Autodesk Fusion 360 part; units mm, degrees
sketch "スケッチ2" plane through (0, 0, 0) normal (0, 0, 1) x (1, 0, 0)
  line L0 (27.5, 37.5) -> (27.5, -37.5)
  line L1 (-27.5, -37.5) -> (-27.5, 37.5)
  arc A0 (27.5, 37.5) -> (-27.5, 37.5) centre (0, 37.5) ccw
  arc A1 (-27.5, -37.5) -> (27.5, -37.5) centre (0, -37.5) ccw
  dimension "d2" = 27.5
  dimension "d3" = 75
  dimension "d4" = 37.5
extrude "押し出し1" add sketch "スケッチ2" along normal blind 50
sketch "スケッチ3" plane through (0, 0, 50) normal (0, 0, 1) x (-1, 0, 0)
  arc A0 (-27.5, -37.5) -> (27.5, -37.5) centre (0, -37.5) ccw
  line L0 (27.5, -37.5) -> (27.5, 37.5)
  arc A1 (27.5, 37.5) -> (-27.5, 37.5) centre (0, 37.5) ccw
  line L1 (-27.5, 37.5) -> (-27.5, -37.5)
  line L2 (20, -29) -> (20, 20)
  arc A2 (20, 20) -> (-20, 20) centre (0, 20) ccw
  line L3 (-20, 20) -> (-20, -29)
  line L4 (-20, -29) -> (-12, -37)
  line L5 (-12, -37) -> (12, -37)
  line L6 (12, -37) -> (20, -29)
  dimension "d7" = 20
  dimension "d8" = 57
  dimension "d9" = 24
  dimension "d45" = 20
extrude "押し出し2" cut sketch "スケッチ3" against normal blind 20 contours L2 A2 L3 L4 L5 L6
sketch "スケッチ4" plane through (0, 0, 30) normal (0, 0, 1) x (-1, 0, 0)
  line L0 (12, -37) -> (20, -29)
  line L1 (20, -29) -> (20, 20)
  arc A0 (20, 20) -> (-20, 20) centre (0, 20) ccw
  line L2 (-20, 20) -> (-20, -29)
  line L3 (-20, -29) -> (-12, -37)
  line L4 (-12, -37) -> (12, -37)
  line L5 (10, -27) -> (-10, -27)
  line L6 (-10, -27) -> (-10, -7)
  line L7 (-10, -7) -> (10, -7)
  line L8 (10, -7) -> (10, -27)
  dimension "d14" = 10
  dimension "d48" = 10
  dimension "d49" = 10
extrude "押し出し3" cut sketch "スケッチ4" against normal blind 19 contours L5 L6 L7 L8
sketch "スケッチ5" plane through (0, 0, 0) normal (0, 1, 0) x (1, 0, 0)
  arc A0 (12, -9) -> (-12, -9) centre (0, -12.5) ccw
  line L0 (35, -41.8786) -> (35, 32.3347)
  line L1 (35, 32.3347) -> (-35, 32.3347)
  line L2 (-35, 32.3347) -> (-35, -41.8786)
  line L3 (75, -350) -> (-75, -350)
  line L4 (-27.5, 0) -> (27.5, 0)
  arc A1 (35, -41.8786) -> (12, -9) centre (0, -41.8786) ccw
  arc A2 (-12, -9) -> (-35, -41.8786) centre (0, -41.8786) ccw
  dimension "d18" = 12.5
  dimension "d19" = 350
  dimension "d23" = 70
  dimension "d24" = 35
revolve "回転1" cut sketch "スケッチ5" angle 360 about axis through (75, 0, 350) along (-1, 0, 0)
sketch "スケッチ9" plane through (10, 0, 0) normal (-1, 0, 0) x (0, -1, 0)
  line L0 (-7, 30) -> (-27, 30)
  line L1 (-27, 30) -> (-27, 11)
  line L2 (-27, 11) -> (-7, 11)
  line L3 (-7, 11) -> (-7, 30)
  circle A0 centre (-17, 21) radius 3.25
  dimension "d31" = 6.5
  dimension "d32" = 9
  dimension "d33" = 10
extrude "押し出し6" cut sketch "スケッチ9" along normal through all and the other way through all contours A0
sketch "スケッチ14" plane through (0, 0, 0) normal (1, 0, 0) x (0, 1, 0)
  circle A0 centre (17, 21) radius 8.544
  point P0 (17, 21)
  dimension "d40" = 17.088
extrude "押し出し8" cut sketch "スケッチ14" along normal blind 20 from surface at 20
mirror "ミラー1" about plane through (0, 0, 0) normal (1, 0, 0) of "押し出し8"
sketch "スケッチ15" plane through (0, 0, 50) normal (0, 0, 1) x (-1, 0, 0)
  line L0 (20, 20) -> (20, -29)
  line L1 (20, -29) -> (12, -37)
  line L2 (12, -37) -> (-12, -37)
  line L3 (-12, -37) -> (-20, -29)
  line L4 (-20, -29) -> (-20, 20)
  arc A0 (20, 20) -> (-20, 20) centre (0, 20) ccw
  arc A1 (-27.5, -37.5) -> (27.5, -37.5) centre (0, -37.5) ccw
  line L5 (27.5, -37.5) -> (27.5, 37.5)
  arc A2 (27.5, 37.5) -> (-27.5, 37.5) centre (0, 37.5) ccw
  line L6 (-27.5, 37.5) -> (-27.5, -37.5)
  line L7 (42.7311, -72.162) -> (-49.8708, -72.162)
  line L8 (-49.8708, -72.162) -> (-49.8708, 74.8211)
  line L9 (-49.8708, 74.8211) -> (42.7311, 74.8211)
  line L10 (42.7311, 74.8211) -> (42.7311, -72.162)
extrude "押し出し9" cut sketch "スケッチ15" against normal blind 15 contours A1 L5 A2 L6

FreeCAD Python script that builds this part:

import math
import FreeCAD as App
import Part
import Sketcher
Q = App.Units.Quantity


def add_polygon(sketch, points):
    """Adds a closed chain of lines whose ends are joined by coincident constraints."""
    first, n = sketch.GeometryCount, len(points)
    for a, b in zip(points, points[1:] + points[:1]):
        sketch.addGeometry(Part.LineSegment(App.Vector(*a, 0), App.Vector(*b, 0)), False)
    for i in range(n):
        sketch.addConstraint(Sketcher.Constraint("Coincident", first + i, 2, first + (i + 1) % n, 1))

doc = App.newDocument("Part")
body = doc.addObject("PartDesign::Body", "Body")

# Sketch on XY plane
sketch1 = body.newObject("Sketcher::SketchObject", "Sketch")
sketch1.AttachmentSupport = (doc.getObject("XY_Plane"), [""])
sketch1.MapMode = "FlatFace"
sketch1.addGeometry(Part.LineSegment(App.Vector(27.5, -37.5, 0), App.Vector(27.5, 37.5, 0)), False)
sketch1.addGeometry(Part.ArcOfCircle(Part.Circle(App.Vector(0, 37.5, 0), App.Vector(0, 0, 1), 27.5), math.radians(0), math.radians(180)), False)
sketch1.addGeometry(Part.LineSegment(App.Vector(-27.5, 37.5, 0), App.Vector(-27.5, -37.5, 0)), False)
sketch1.addGeometry(Part.ArcOfCircle(Part.Circle(App.Vector(0, -37.5, 0), App.Vector(0, 0, 1), 27.5), math.radians(180), math.radians(360)), False)
sketch1.addConstraint(Sketcher.Constraint("Tangent", 0, 2, 1, 1))
sketch1.addConstraint(Sketcher.Constraint("Tangent", 1, 2, 2, 1))
sketch1.addConstraint(Sketcher.Constraint("Tangent", 2, 2, 3, 1))
sketch1.addConstraint(Sketcher.Constraint("Tangent", 3, 2, 0, 1))
sketch1.addConstraint(Sketcher.Constraint("Vertical", 0))
sketch1.addConstraint(Sketcher.Constraint("Vertical", 2))
sketch1.addConstraint(Sketcher.Constraint("Symmetric", 1, 3, 3, 3, -1, 1))
sketch1.addConstraint(Sketcher.Constraint("Radius", 1, Q("27.5 mm")))
sketch1.addConstraint(Sketcher.Constraint("DistanceY", 0, 1, 0, 2, Q("75 mm")))
pad1 = body.newObject("PartDesign::Pad", "Pad")
pad1.Profile = sketch1
pad1.Length = 50

# Sketch on XY plane
sketch2 = body.newObject("Sketcher::SketchObject", "Sketch001")
sketch2.AttachmentSupport = (doc.getObject("XY_Plane"), [""])
sketch2.MapMode = "FlatFace"
sketch2.AttachmentOffset = App.Placement(App.Vector(0, 0, 50), App.Rotation())
sketch2.addGeometry(Part.LineSegment(App.Vector(-12, 37, 0), App.Vector(-20, 29, 0)), False)
sketch2.addGeometry(Part.LineSegment(App.Vector(-20, 29, 0), App.Vector(-20, -20, 0)), False)
sketch2.addGeometry(Part.ArcOfCircle(Part.Circle(App.Vector(0, -20, 0), App.Vector(0, 0, 1), 20), math.radians(180), math.radians(360)), False)
sketch2.addGeometry(Part.LineSegment(App.Vector(20, -20, 0), App.Vector(20, 29, 0)), False)
sketch2.addGeometry(Part.LineSegment(App.Vector(20, 29, 0), App.Vector(12, 37, 0)), False)
sketch2.addGeometry(Part.LineSegment(App.Vector(12, 37, 0), App.Vector(-12, 37, 0)), False)
sketch2.addConstraint(Sketcher.Constraint("Coincident", 0, 2, 1, 1))
sketch2.addConstraint(Sketcher.Constraint("Tangent", 1, 2, 2, 1))
sketch2.addConstraint(Sketcher.Constraint("Tangent", 2, 2, 3, 1))
sketch2.addConstraint(Sketcher.Constraint("Coincident", 3, 2, 4, 1))
sketch2.addConstraint(Sketcher.Constraint("Coincident", 4, 2, 5, 1))
sketch2.addConstraint(Sketcher.Constraint("Coincident", 5, 2, 0, 1))
sketch2.addConstraint(Sketcher.Constraint("Vertical", 1))
sketch2.addConstraint(Sketcher.Constraint("Vertical", 3))
sketch2.addConstraint(Sketcher.Constraint("Horizontal", 5))
sketch2.addConstraint(Sketcher.Constraint("Symmetric", 0, 2, 3, 2, -2))
sketch2.addConstraint(Sketcher.Constraint("Perpendicular", 0, 4))
sketch2.addConstraint(Sketcher.Constraint("Equal", 0, 4))
sketch2.addConstraint(Sketcher.Constraint("Radius", 2, Q("20 mm")))
sketch2.addConstraint(Sketcher.Constraint("DistanceX", 5, 2, 5, 1, Q("24 mm")))
sketch2.addConstraint(Sketcher.Constraint("DistanceY", 2, 3, -1, 1, Q("20 mm")))
sketch2.addConstraint(Sketcher.Constraint("DistanceY", 2, 2, 4, 2, Q("57 mm")))
pocket1 = body.newObject("PartDesign::Pocket", "Pocket")
pocket1.Profile = sketch2
pocket1.Length = 20

# Sketch on XY plane
sketch3 = body.newObject("Sketcher::SketchObject", "Sketch002")
sketch3.AttachmentSupport = (doc.getObject("XY_Plane"), [""])
sketch3.MapMode = "FlatFace"
sketch3.AttachmentOffset = App.Placement(App.Vector(0, 0, 30), App.Rotation())
add_polygon(sketch3, [(10, 27), (-10, 27), (-10, 7), (10, 7)])  # lines 0-3
sketch3.addConstraint(Sketcher.Constraint("Horizontal", 0))
sketch3.addConstraint(Sketcher.Constraint("Vertical", 1))
sketch3.addConstraint(Sketcher.Constraint("Horizontal", 2))
sketch3.addConstraint(Sketcher.Constraint("Vertical", 3))
sketch3.addConstraint(Sketcher.Constraint("Equal", 2, 1))
sketch3.addConstraint(Sketcher.Constraint("DistanceX", 0, 2, -1, 1, Q("10 mm")))
sketch3.addConstraint(Sketcher.Constraint("DistanceX", -1, 1, 2, 2, Q("10 mm")))
sketch3.addConstraint(Sketcher.Constraint("DistanceY", -1, 1, 0, 2, Q("27 mm")))
pocket2 = body.newObject("PartDesign::Pocket", "Pocket001")
pocket2.Profile = sketch3
pocket2.Length = 19

# Sketch on XZ plane
sketch4 = body.newObject("Sketcher::SketchObject", "Sketch003")
sketch4.AttachmentSupport = (doc.getObject("XZ_Plane"), [""])
sketch4.MapMode = "FlatFace"
sketch4.addGeometry(Part.ArcOfCircle(Part.Circle(App.Vector(0, 12.5, 0), App.Vector(0, 0, 1), 12.5), math.radians(-163.739795), math.radians(-16.260205)), False)
sketch4.addGeometry(Part.ArcOfCircle(Part.Circle(App.Vector(0, 41.8786, 0), App.Vector(0, 0, 1), 35.000033), math.radians(-69.948977), math.radians(0)), False)
sketch4.addGeometry(Part.LineSegment(App.Vector(35, 41.8786, 0), App.Vector(35, -32.3347, 0)), False)
sketch4.addGeometry(Part.LineSegment(App.Vector(35, -32.3347, 0), App.Vector(-35, -32.3347, 0)), False)
sketch4.addGeometry(Part.LineSegment(App.Vector(-35, -32.3347, 0), App.Vector(-35, 41.8786, 0)), False)
sketch4.addGeometry(Part.ArcOfCircle(Part.Circle(App.Vector(0, 41.8786, 0), App.Vector(0, 0, 1), 35), math.radians(180), math.radians(249.948977)), False)
sketch4.addGeometry(Part.LineSegment(App.Vector(35, 350, 0), App.Vector(-35, 350, 0)), True)  # axis
sketch4.addConstraint(Sketcher.Constraint("Coincident", 0, 2, 1, 1))
sketch4.addConstraint(Sketcher.Constraint("Tangent", 1, 2, 2, 1))
sketch4.addConstraint(Sketcher.Constraint("Coincident", 2, 2, 3, 1))
sketch4.addConstraint(Sketcher.Constraint("Coincident", 3, 2, 4, 1))
sketch4.addConstraint(Sketcher.Constraint("Tangent", 4, 2, 5, 1))
sketch4.addConstraint(Sketcher.Constraint("Coincident", 5, 2, 0, 1))
sketch4.addConstraint(Sketcher.Constraint("Vertical", 2))
sketch4.addConstraint(Sketcher.Constraint("Horizontal", 3))
sketch4.addConstraint(Sketcher.Constraint("Vertical", 4))
sketch4.addConstraint(Sketcher.Constraint("Horizontal", 6))
sketch4.addConstraint(Sketcher.Constraint("Coincident", 5, 3, 1, 3))
sketch4.addConstraint(Sketcher.Constraint("Equal", 1, 5))
sketch4.addConstraint(Sketcher.Constraint("Symmetric", 0, 2, 5, 2, -2))
sketch4.addConstraint(Sketcher.Constraint("Vertical", 2, 2, 6, 1))
sketch4.addConstraint(Sketcher.Constraint("Vertical", 4, 2, 6, 2))
sketch4.addConstraint(Sketcher.Constraint("Radius", 1, Q("35 mm")))
sketch4.addConstraint(Sketcher.Constraint("Radius", 0, Q("12.5 mm")))
sketch4.addConstraint(Sketcher.Constraint("DistanceY", -1, 1, 6, 1, Q("350 mm")))
sketch4.addConstraint(Sketcher.Constraint("DistanceY", -1, 1, 0, 3, Q("12.5 mm")))
sketch4.addConstraint(Sketcher.Constraint("DistanceX", -1, 1, 0, 2, Q("12 mm")))
sketch4.addConstraint(Sketcher.Constraint("DistanceY", 2, 2, 2, 1, Q("74.2133 mm")))
groove = body.newObject("PartDesign::Groove", "Groove")
groove.Profile = sketch4
groove.ReferenceAxis = (sketch4, ["Axis0"])
groove.Angle = 360

# Sketch on YZ plane
sketch5 = body.newObject("Sketcher::SketchObject", "Sketch004")
sketch5.AttachmentSupport = (doc.getObject("YZ_Plane"), [""])
sketch5.MapMode = "FlatFace"
sketch5.AttachmentOffset = App.Placement(App.Vector(0, 0, 10), App.Rotation())
sketch5.addGeometry(Part.Circle(App.Vector(17, 21, 0), App.Vector(0, 0, 1), 3.25), False)
sketch5.addConstraint(Sketcher.Constraint("Diameter", 0, Q("6.5 mm")))
sketch5.addConstraint(Sketcher.Constraint("DistanceX", -1, 1, 0, 3, Q("17 mm")))
sketch5.addConstraint(Sketcher.Constraint("DistanceY", -1, 1, 0, 3, Q("21 mm")))
pocket3 = body.newObject("PartDesign::Pocket", "Pocket002")
pocket3.Profile = sketch5
pocket3.Type = "ThroughAll"
pocket3.Midplane = True

# Sketch on YZ plane
sketch6 = body.newObject("Sketcher::SketchObject", "Sketch005")
sketch6.AttachmentSupport = (doc.getObject("YZ_Plane"), [""])
sketch6.MapMode = "FlatFace"
sketch6.AttachmentOffset = App.Placement(App.Vector(0, 0, 20), App.Rotation())
sketch6.addGeometry(Part.Circle(App.Vector(17, 21, 0), App.Vector(0, 0, 1), 8.544), False)
sketch6.addConstraint(Sketcher.Constraint("Diameter", 0, Q("17.088 mm")))
sketch6.addConstraint(Sketcher.Constraint("DistanceX", -1, 1, 0, 3, Q("17 mm")))
sketch6.addConstraint(Sketcher.Constraint("DistanceY", -1, 1, 0, 3, Q("21 mm")))
pocket4 = body.newObject("PartDesign::Pocket", "Pocket003")
pocket4.Profile = sketch6
pocket4.Length = 20
pocket4.Reversed = True
doc.recompute()

mirrored = body.newObject("PartDesign::Mirrored", "Mirrored")
mirrored.Originals = [pocket4]
mirrored.MirrorPlane = (doc.getObject("YZ_Plane"), [""])
body.Tip = mirrored

# Sketch on XY plane
sketch7 = body.newObject("Sketcher::SketchObject", "Sketch006")
sketch7.AttachmentSupport = (doc.getObject("XY_Plane"), [""])
sketch7.MapMode = "FlatFace"
sketch7.AttachmentOffset = App.Placement(App.Vector(0, 0, 50), App.Rotation())
sketch7.addGeometry(Part.LineSegment(App.Vector(27.5, -37.5, 0), App.Vector(27.5, 37.5, 0)), False)
sketch7.addGeometry(Part.ArcOfCircle(Part.Circle(App.Vector(0, 37.5, 0), App.Vector(0, 0, 1), 27.5), math.radians(0), math.radians(180)), False)
sketch7.addGeometry(Part.LineSegment(App.Vector(-27.5, 37.5, 0), App.Vector(-27.5, -37.5, 0)), False)
sketch7.addGeometry(Part.ArcOfCircle(Part.Circle(App.Vector(0, -37.5, 0), App.Vector(0, 0, 1), 27.5), math.radians(180), math.radians(360)), False)
sketch7.addGeometry(Part.ArcOfCircle(Part.Circle(App.Vector(0, -20, 0), App.Vector(0, 0, 1), 20), math.radians(180), math.radians(360)), False)
sketch7.addGeometry(Part.LineSegment(App.Vector(-20, -20, 0), App.Vector(-20, 29, 0)), False)
sketch7.addGeometry(Part.LineSegment(App.Vector(-20, 29, 0), App.Vector(-12, 37, 0)), False)
sketch7.addGeometry(Part.LineSegment(App.Vector(-12, 37, 0), App.Vector(12, 37, 0)), False)
sketch7.addGeometry(Part.LineSegment(App.Vector(12, 37, 0), App.Vector(20, 29, 0)), False)
sketch7.addGeometry(Part.LineSegment(App.Vector(20, 29, 0), App.Vector(20, -20, 0)), False)
sketch7.addConstraint(Sketcher.Constraint("Tangent", 0, 2, 1, 1))
sketch7.addConstraint(Sketcher.Constraint("Tangent", 1, 2, 2, 1))
sketch7.addConstraint(Sketcher.Constraint("Tangent", 2, 2, 3, 1))
sketch7.addConstraint(Sketcher.Constraint("Tangent", 3, 2, 0, 1))
sketch7.addConstraint(Sketcher.Constraint("Tangent", 4, 1, 5, 1))
sketch7.addConstraint(Sketcher.Constraint("Coincident", 5, 2, 6, 1))
sketch7.addConstraint(Sketcher.Constraint("Coincident", 6, 2, 7, 1))
sketch7.addConstraint(Sketcher.Constraint("Coincident", 7, 2, 8, 1))
sketch7.addConstraint(Sketcher.Constraint("Coincident", 8, 2, 9, 1))
sketch7.addConstraint(Sketcher.Constraint("Tangent", 9, 2, 4, 2))
sketch7.addConstraint(Sketcher.Constraint("Vertical", 0))
sketch7.addConstraint(Sketcher.Constraint("Vertical", 2))
sketch7.addConstraint(Sketcher.Constraint("Vertical", 5))
sketch7.addConstraint(Sketcher.Constraint("Horizontal", 7))
sketch7.addConstraint(Sketcher.Constraint("Vertical", 9))
sketch7.addConstraint(Sketcher.Constraint("Symmetric", 1, 3, 3, 3, -1, 1))
sketch7.addConstraint(Sketcher.Constraint("Symmetric", 5, 2, 8, 2, -2))
sketch7.addConstraint(Sketcher.Constraint("Perpendicular", 6, 8))
sketch7.addConstraint(Sketcher.Constraint("Equal", 6, 8))
sketch7.addConstraint(Sketcher.Constraint("Radius", 4, Q("20 mm")))
sketch7.addConstraint(Sketcher.Constraint("Radius", 1, Q("27.5 mm")))
sketch7.addConstraint(Sketcher.Constraint("DistanceX", 7, 1, 7, 2, Q("24 mm")))
sketch7.addConstraint(Sketcher.Constraint("DistanceY", 0, 1, 0, 2, Q("75 mm")))
sketch7.addConstraint(Sketcher.Constraint("DistanceY", 5, 1, 5, 2, Q("49 mm")))
sketch7.addConstraint(Sketcher.Constraint("DistanceY", 4, 3, -1, 1, Q("20 mm")))
pocket5 = body.newObject("PartDesign::Pocket", "Pocket004")
pocket5.Profile = sketch7
pocket5.Length = 15

doc.recompute()
